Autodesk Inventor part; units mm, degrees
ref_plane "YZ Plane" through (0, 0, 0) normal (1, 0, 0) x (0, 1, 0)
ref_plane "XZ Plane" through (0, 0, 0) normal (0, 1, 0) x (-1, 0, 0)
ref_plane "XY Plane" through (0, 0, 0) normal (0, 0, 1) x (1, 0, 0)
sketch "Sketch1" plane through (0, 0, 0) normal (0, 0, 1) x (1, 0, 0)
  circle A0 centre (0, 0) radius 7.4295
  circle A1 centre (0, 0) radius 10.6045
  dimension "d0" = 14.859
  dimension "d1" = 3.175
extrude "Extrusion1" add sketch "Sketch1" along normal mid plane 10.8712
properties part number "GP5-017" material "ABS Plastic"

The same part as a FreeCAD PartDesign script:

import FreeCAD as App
import Part
import Sketcher
Q = App.Units.Quantity

doc = App.newDocument("Part")
body = doc.addObject("PartDesign::Body", "Body")

# Sketch on XY plane
sketch1 = doc.addObject("Sketcher::SketchObject", "Sketch")
body.addObject(sketch1)
sketch1.AttachmentSupport = (doc.XY_Plane, [""])
sketch1.MapMode = "FlatFace"
sketch1.addGeometry(Part.Circle(App.Vector(0, 0, 0), App.Vector(0, 0, 1), 11), False)
sketch1.addGeometry(Part.Circle(App.Vector(0, 0, 0), App.Vector(0, 0, 1), 7), False)
sketch1.addConstraint(Sketcher.Constraint("Coincident", 0, 3, -1, 1))
sketch1.addConstraint(Sketcher.Constraint("Coincident", 1, 3, -1, 1))
sketch1.addConstraint(Sketcher.Constraint("Diameter", 1, Q("0.585 in")))
sketch1.addConstraint(Sketcher.Constraint("Diameter", 0, Q("0.835 in")))
pad1 = doc.addObject("PartDesign::Pad", "Pad")
body.addObject(pad1)
pad1.Profile = sketch1
pad1.Length = Q("0.428 in")
pad1.Midplane = True

doc.recompute()
